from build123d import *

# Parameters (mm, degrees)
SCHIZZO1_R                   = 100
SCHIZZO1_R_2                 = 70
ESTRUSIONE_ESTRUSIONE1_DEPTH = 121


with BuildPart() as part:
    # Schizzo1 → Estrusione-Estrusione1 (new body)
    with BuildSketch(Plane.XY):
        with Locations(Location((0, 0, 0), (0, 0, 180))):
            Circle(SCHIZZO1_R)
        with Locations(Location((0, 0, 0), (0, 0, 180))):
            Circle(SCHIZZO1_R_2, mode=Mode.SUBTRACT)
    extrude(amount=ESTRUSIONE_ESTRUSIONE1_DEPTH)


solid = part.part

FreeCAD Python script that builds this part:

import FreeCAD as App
import Part
import Sketcher

V = App.Vector

doc = App.newDocument("Part")
body = doc.addObject("PartDesign::Body", "Body")

# Sketch on XY plane
sketch1 = body.newObject("Sketcher::SketchObject", "Sketch")
sketch1.AttachmentSupport = (doc.getObject("XY_Plane"), [""])
sketch1.MapMode = "FlatFace"
sketch1.addGeometry([
    Part.Circle(V(0, 0, 0), V(0, 0, 1), 100),
    Part.Circle(V(0, 0, 0), V(0, 0, 1), 70),
], False)
sketch1.addConstraint([
    Sketcher.Constraint("Coincident", 0, 3, -1, 1),
    Sketcher.Constraint("Coincident", 1, 3, -1, 1),
    Sketcher.Constraint("Diameter", 0, 200.0),
    Sketcher.Constraint("Diameter", 1, 140.0),
])
pad1 = body.newObject("PartDesign::Pad", "Pad")
pad1.Profile = sketch1
pad1.Length = 121

doc.recompute()
